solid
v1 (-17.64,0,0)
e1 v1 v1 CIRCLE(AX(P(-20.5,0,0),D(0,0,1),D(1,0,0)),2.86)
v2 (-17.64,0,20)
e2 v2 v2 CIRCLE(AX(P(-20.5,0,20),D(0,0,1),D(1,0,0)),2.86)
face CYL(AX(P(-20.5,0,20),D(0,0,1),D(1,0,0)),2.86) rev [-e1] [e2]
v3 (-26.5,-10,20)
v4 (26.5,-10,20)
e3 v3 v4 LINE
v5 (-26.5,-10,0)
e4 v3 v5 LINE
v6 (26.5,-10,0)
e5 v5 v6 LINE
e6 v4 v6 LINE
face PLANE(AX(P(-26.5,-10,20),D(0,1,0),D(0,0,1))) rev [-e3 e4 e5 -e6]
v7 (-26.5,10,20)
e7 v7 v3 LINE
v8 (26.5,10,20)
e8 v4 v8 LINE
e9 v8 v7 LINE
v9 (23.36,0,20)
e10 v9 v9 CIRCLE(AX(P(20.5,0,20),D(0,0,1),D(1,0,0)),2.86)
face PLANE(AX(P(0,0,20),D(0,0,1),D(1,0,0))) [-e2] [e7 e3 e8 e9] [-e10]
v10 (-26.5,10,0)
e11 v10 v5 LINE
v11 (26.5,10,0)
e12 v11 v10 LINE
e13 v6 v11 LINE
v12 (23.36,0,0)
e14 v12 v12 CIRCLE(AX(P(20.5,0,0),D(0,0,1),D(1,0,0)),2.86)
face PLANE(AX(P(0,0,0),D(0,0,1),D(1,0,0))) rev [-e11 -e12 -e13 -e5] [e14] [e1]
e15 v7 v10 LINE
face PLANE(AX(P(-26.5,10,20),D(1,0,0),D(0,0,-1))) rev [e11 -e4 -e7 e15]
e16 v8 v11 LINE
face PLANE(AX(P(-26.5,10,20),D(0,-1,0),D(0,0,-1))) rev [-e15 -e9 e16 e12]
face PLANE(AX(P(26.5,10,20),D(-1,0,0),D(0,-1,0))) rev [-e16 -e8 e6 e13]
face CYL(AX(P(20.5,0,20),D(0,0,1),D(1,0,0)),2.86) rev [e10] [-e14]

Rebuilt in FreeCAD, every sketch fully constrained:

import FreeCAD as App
import Part
import Sketcher

doc = App.newDocument("Part")
body = doc.addObject("PartDesign::Body", "Body")

sketch1 = doc.addObject("Sketcher::SketchObject", "Sketch")
body.addObject(sketch1)
sketch1.AttachmentSupport = (doc.XY_Plane, [""])
sketch1.MapMode = "FlatFace"
sketch1.addGeometry(Part.LineSegment(App.Vector(-26, 10, 0), App.Vector(-26, -10, 0)), False)
sketch1.addGeometry(Part.LineSegment(App.Vector(-26, -10, 0), App.Vector(26, -10, 0)), False)
sketch1.addGeometry(Part.LineSegment(App.Vector(26, -10, 0), App.Vector(26, 10, 0)), False)
sketch1.addGeometry(Part.LineSegment(App.Vector(26, 10, 0), App.Vector(-26, 10, 0)), False)
sketch1.addConstraint(Sketcher.Constraint("Coincident", 0, 2, 1, 1))
sketch1.addConstraint(Sketcher.Constraint("Coincident", 1, 2, 2, 1))
sketch1.addConstraint(Sketcher.Constraint("Coincident", 2, 2, 3, 1))
sketch1.addConstraint(Sketcher.Constraint("Coincident", 3, 2, 0, 1))
sketch1.addConstraint(Sketcher.Constraint("Vertical", 0))
sketch1.addConstraint(Sketcher.Constraint("Horizontal", 1))
sketch1.addConstraint(Sketcher.Constraint("Vertical", 2))
sketch1.addConstraint(Sketcher.Constraint("Horizontal", 3))
sketch1.addConstraint(Sketcher.Constraint("Symmetric", 0, 2, 2, 2, -1, 1))
sketch1.addConstraint(Sketcher.Constraint("DistanceX", 1, 1, 1, 2, 53.0))
sketch1.addConstraint(Sketcher.Constraint("DistanceY", 0, 2, 0, 1, 20.0))
pad1 = doc.addObject("PartDesign::Pad", "Pad")
body.addObject(pad1)
pad1.Profile = sketch1
pad1.Length = 20

sketch2 = doc.addObject("Sketcher::SketchObject", "Sketch001")
body.addObject(sketch2)
sketch2.AttachmentSupport = (doc.XY_Plane, [""])
sketch2.MapMode = "FlatFace"
sketch2.AttachmentOffset = App.Placement(App.Vector(0, 0, 20), App.Rotation())
sketch2.addGeometry(Part.Circle(App.Vector(-20.5, 0, 0), App.Vector(0, 0, 1), 2.9), False)
sketch2.addGeometry(Part.Circle(App.Vector(20.5, 0, 0), App.Vector(0, 0, 1), 2.9), False)
sketch2.addConstraint(Sketcher.Constraint("Equal", 0, 1))
sketch2.addConstraint(Sketcher.Constraint("Symmetric", 0, 3, 1, 3, -1, 1))
sketch2.addConstraint(Sketcher.Constraint("PointOnObject", 0, 3, -1))
sketch2.addConstraint(Sketcher.Constraint("Diameter", 0, 5.72))
sketch2.addConstraint(Sketcher.Constraint("DistanceX", 0, 3, 1, 3, 41.0))
doc.recompute()
hole = doc.addObject("PartDesign::Hole", "Hole")
body.addObject(hole)
hole.Profile = sketch2
hole.ThreadType = "None"
hole.Diameter = 5.72
hole.DepthType = "ThroughAll"

doc.recompute()
